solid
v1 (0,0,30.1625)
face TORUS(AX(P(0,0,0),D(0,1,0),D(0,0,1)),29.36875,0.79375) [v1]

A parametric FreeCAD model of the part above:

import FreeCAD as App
import Part
import Sketcher
from FreeCAD import Vector
Q = App.Units.Quantity

doc = App.newDocument("Part")
body = doc.addObject("PartDesign::Body", "Body")

# Sketch on XY plane
sketch1 = body.newObject("Sketcher::SketchObject", "Sketch")
sketch1.AttachmentSupport = (doc.getObject("XY_Plane"), [""])
sketch1.MapMode = "FlatFace"
sketch1.addGeometry(Part.Circle(Vector(29.4, 0, 0), Vector(0, 0, 1), 0.8), False)
sketch1.addConstraint(Sketcher.Constraint("PointOnObject", 0, 3, -1))
sketch1.addConstraint(Sketcher.Constraint("Diameter", 0, Q("0.0625 in")))
sketch1.addConstraint(Sketcher.Constraint("DistanceX", -1, 1, 0, 3, Q("1.15625 in")))
revolution = body.newObject("PartDesign::Revolution", "Revolution")
revolution.Profile = sketch1
revolution.ReferenceAxis = (sketch1, ["V_Axis"])
revolution.Angle = 360

doc.recompute()
